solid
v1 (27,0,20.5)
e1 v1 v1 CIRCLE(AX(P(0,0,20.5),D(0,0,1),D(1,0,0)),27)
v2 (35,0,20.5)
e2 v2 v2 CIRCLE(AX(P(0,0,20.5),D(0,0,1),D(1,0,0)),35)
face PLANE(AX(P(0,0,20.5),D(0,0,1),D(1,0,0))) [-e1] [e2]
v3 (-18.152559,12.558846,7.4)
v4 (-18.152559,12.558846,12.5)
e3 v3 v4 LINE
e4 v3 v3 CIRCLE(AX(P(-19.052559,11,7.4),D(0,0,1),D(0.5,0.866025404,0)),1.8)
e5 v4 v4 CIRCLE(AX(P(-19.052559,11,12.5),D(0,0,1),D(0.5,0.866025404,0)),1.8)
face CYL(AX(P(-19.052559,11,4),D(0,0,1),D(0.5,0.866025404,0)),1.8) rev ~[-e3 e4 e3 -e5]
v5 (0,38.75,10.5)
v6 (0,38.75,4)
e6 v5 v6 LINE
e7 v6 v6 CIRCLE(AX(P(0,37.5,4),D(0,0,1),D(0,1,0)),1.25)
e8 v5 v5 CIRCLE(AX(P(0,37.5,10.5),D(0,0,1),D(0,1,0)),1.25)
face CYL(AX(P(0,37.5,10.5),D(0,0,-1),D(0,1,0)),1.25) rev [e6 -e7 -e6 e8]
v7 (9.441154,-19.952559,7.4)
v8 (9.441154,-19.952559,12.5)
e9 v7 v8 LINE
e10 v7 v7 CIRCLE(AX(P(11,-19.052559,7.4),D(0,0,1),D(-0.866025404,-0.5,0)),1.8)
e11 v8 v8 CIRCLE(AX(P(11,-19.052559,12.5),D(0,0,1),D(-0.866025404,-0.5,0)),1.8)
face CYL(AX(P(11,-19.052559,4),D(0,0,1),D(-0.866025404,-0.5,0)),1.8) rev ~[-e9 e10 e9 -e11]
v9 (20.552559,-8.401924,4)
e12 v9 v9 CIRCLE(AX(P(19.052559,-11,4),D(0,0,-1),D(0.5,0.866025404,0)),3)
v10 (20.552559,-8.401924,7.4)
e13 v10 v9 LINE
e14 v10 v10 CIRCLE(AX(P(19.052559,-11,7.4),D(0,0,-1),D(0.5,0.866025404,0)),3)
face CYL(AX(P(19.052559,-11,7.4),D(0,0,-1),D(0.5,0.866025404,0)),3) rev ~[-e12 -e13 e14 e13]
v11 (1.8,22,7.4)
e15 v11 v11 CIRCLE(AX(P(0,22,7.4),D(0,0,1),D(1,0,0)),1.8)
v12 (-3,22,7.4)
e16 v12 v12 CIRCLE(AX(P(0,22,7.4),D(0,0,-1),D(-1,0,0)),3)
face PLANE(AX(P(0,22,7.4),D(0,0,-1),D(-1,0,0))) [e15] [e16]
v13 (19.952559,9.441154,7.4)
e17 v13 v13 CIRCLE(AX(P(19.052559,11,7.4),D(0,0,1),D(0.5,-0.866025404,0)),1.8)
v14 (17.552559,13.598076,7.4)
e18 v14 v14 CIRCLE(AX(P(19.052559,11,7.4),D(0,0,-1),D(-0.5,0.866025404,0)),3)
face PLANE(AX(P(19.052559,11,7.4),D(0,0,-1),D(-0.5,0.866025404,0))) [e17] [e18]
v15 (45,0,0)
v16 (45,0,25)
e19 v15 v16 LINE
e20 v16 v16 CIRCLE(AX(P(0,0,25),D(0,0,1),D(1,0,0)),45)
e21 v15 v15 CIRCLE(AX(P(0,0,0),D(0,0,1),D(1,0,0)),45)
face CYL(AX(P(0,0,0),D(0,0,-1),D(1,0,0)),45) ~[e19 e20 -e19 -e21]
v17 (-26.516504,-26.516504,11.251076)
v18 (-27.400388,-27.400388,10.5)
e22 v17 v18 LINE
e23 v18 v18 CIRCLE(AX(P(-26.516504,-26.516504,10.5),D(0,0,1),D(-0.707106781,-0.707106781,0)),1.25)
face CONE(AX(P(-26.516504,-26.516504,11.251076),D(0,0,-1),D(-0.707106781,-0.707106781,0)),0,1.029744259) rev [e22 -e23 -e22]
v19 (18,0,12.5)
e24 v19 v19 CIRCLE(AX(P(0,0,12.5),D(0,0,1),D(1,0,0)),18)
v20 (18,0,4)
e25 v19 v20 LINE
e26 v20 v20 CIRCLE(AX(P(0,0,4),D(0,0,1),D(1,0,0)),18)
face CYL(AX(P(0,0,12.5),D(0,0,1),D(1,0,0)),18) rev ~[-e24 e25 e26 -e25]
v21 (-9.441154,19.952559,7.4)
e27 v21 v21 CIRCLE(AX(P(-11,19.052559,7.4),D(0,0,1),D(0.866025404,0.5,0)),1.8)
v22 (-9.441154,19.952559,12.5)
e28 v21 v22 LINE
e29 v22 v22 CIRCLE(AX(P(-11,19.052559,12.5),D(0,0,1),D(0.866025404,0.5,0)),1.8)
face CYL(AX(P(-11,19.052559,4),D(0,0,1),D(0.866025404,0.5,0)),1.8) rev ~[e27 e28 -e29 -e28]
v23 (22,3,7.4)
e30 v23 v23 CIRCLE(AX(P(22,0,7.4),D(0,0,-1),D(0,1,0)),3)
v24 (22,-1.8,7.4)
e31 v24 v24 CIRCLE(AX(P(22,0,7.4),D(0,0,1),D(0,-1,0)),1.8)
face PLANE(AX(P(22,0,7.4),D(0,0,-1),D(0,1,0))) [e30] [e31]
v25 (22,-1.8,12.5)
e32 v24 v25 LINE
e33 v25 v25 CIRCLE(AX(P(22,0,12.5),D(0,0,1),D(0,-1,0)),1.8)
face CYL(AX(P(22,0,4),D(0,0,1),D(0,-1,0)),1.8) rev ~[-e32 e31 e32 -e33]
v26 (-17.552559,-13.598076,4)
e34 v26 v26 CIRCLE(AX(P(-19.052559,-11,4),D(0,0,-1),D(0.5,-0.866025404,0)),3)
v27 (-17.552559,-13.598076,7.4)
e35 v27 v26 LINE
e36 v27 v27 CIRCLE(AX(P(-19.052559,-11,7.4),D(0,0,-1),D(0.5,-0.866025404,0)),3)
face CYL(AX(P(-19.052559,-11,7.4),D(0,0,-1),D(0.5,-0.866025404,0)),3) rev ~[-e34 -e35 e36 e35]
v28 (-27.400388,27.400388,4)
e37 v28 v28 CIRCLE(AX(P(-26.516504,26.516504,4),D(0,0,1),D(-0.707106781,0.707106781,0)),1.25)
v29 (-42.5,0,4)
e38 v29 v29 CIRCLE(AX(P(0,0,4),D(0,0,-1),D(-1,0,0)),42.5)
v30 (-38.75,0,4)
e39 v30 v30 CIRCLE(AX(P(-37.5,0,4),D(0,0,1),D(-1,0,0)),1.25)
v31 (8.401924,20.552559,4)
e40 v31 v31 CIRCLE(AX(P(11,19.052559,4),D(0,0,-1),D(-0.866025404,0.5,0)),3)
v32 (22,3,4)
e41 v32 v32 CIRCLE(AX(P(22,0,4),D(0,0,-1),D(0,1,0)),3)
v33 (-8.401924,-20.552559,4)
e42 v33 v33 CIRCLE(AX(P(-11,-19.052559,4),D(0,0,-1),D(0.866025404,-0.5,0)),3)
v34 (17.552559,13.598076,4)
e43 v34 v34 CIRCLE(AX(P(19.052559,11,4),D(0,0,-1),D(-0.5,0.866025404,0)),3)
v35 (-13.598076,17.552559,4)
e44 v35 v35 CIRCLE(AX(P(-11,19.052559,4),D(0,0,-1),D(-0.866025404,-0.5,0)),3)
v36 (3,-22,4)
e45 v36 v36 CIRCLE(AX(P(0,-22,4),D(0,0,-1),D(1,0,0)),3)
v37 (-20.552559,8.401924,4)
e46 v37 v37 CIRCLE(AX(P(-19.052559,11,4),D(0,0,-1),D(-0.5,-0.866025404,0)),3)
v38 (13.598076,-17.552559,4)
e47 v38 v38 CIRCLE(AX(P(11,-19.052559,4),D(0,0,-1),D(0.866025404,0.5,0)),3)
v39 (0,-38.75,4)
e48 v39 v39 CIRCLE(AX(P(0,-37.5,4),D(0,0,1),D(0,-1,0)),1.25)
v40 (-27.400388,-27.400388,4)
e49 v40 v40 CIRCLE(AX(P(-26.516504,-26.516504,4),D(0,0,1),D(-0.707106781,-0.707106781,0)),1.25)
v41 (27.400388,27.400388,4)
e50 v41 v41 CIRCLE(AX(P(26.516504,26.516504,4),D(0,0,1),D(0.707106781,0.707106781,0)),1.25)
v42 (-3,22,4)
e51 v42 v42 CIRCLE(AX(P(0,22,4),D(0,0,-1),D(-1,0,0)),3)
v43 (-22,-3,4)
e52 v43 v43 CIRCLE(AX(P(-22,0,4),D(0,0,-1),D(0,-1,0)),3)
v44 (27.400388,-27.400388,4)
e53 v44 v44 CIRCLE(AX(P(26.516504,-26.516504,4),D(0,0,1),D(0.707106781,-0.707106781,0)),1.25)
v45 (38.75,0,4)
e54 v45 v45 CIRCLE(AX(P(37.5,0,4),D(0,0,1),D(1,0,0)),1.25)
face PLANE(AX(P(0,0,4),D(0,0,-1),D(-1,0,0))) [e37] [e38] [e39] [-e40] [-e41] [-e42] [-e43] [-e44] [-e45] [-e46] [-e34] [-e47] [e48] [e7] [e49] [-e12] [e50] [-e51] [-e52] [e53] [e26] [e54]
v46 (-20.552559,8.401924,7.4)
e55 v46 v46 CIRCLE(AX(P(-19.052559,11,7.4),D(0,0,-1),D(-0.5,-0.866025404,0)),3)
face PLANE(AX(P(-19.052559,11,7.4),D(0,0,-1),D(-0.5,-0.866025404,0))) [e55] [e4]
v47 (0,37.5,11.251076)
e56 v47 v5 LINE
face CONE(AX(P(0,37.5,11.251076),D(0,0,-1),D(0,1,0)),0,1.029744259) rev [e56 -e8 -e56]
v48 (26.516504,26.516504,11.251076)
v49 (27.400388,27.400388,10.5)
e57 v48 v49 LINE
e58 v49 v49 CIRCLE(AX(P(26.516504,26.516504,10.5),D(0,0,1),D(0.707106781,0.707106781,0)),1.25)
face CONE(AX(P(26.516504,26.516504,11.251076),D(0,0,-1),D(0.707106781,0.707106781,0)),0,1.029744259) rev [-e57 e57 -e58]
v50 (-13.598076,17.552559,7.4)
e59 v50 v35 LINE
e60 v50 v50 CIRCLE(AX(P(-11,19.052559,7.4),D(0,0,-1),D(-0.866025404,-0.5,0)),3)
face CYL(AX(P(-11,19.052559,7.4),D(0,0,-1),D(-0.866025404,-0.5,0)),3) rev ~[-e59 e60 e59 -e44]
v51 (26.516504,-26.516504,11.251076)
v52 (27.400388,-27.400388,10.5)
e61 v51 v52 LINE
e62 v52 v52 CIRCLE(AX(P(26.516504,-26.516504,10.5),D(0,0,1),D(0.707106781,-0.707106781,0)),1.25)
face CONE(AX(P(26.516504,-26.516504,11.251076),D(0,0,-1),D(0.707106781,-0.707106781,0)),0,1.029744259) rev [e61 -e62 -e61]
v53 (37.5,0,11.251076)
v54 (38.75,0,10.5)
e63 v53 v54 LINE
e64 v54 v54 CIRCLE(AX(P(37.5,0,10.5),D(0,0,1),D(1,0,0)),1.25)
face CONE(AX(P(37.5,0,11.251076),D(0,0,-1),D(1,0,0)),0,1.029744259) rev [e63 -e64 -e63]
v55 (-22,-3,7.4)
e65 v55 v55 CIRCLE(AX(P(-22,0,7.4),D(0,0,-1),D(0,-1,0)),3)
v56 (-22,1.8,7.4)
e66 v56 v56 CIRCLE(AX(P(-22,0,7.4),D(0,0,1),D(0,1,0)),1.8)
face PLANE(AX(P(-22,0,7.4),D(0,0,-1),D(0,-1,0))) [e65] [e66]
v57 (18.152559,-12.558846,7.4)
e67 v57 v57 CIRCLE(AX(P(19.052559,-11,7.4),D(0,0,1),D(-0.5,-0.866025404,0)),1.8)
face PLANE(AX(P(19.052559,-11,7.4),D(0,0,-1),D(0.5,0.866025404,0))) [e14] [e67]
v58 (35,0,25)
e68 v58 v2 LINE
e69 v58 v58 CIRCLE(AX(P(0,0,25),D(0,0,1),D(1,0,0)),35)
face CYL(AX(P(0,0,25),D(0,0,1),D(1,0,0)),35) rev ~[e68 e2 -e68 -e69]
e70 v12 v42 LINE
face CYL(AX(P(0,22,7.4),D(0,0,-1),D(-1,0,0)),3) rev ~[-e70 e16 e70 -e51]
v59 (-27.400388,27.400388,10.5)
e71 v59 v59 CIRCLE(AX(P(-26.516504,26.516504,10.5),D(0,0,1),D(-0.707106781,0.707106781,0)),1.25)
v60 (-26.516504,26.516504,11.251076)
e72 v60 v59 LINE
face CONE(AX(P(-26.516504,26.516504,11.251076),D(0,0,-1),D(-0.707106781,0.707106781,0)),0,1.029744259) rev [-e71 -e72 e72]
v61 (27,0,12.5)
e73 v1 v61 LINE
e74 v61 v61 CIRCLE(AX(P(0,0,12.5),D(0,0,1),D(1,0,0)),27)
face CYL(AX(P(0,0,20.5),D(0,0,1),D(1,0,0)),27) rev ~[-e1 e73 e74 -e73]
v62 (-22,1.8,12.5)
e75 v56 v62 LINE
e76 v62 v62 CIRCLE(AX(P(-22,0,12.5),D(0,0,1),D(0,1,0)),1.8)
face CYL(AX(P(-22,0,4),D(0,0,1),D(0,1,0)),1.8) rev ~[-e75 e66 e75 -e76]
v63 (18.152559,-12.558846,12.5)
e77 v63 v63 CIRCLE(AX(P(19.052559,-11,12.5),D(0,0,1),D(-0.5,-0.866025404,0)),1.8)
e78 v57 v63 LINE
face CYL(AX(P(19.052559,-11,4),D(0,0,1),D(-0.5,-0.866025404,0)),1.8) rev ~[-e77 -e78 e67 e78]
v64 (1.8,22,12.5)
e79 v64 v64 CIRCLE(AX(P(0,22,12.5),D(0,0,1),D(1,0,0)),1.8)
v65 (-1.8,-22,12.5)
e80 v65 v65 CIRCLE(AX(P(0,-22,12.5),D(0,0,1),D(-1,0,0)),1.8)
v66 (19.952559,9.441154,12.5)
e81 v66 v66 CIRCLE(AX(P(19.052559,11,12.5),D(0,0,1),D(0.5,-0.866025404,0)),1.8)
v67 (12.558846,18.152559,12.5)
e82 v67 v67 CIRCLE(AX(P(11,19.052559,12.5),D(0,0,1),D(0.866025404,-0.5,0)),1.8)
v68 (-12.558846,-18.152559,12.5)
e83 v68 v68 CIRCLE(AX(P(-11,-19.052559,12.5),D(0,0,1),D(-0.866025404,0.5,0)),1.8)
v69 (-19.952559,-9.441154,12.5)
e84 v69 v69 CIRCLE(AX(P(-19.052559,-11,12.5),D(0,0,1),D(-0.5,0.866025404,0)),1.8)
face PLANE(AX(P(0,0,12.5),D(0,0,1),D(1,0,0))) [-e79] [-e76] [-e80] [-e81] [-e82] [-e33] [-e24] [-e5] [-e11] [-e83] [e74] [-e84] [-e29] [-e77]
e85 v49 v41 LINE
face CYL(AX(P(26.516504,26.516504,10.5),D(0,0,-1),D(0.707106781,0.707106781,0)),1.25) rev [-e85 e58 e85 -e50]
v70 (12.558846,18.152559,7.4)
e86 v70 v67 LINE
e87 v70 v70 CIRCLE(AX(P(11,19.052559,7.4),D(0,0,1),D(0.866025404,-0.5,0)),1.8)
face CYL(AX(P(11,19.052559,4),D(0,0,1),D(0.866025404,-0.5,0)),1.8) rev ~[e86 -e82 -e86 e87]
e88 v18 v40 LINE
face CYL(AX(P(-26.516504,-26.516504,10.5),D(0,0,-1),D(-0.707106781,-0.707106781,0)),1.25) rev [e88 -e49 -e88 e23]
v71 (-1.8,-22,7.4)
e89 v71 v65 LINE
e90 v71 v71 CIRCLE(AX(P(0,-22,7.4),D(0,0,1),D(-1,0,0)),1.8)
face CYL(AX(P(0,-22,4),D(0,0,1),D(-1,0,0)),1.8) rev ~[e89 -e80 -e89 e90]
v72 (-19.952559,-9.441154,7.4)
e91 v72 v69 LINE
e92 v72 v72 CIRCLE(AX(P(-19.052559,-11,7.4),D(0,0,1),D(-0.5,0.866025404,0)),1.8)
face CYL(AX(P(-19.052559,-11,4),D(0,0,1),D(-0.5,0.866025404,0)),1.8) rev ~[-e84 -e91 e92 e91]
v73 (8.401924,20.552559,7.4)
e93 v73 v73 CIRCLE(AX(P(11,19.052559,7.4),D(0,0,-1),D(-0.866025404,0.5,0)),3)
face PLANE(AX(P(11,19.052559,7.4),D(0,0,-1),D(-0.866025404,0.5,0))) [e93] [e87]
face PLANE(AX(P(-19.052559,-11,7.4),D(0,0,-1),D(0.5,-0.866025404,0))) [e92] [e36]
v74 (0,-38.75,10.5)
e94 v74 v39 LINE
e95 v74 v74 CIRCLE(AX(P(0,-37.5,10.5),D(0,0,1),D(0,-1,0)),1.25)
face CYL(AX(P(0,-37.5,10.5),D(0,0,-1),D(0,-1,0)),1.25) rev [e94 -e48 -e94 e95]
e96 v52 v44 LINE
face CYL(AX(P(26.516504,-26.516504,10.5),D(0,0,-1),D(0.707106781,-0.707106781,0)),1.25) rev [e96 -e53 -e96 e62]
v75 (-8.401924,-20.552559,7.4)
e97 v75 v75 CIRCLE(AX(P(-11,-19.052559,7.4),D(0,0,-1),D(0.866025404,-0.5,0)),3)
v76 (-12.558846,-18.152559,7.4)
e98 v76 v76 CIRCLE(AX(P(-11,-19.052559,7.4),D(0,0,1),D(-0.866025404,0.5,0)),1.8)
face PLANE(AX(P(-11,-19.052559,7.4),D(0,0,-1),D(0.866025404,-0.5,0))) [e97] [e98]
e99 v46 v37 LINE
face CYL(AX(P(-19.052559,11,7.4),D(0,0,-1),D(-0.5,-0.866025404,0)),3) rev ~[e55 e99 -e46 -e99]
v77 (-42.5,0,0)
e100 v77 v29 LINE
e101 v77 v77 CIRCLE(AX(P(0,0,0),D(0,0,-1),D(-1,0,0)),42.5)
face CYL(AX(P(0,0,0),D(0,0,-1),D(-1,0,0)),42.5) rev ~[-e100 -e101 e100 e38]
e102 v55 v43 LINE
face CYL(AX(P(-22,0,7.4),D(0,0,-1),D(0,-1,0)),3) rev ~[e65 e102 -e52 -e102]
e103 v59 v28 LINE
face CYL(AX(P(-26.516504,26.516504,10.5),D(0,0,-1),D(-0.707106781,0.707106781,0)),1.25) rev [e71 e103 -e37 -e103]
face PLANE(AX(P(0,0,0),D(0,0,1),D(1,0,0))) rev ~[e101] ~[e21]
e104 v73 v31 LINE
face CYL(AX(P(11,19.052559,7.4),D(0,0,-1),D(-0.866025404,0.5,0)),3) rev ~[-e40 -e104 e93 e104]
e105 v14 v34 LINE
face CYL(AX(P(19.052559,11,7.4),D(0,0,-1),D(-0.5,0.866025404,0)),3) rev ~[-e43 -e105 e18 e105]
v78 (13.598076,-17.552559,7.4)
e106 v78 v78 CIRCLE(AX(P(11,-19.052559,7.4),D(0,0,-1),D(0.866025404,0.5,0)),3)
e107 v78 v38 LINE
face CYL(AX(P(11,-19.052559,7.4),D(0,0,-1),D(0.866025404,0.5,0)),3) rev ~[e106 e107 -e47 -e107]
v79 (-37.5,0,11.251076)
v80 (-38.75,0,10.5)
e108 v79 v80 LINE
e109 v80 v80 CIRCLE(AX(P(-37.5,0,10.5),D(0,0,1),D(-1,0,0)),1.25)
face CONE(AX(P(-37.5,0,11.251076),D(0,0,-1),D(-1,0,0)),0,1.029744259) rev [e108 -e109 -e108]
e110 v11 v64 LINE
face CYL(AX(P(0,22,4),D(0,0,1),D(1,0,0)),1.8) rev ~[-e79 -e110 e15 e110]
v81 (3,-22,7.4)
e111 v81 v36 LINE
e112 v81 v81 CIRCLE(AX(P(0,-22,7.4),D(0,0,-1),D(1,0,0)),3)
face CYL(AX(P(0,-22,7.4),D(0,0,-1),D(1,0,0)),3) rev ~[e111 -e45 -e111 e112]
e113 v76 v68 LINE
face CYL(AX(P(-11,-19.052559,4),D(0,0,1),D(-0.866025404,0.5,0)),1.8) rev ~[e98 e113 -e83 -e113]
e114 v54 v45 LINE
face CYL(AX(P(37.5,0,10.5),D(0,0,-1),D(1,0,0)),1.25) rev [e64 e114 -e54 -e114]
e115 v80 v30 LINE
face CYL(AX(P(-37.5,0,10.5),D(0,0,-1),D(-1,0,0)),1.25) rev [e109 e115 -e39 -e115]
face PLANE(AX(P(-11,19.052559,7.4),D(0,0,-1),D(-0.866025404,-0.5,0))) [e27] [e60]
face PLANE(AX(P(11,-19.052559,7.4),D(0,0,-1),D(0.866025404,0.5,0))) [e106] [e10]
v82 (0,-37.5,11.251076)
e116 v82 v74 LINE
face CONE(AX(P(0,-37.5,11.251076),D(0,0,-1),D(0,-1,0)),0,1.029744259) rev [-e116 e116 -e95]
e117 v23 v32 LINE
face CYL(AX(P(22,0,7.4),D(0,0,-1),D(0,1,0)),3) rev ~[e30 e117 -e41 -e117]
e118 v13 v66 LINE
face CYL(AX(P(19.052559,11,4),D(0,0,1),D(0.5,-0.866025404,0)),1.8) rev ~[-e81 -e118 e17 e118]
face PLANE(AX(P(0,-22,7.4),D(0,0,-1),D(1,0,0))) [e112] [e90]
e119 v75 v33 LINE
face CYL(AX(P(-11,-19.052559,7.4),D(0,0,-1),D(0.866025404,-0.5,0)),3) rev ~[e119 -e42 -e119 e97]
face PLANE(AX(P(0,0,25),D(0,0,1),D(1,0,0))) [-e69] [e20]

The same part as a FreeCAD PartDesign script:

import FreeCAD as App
import Part
import Sketcher

V = App.Vector
Q = App.Units.Quantity


def add_polygon(sketch, points):
    """Adds a closed chain of lines whose ends are joined by coincident constraints."""
    first, n = sketch.GeometryCount, len(points)
    for a, b in zip(points, points[1:] + points[:1]):
        sketch.addGeometry(Part.LineSegment(App.Vector(*a, 0), App.Vector(*b, 0)), False)
    for i in range(n):
        sketch.addConstraint(Sketcher.Constraint("Coincident", first + i, 2, first + (i + 1) % n, 1))

doc = App.newDocument("Part")
body = doc.addObject("PartDesign::Body", "Body")

# Sketch on XY plane
sketch1 = body.newObject("Sketcher::SketchObject", "Sketch")
sketch1.AttachmentSupport = (doc.getObject("XY_Plane"), [""])
sketch1.MapMode = "FlatFace"
sketch1.addGeometry(Part.Circle(V(0, 0, 0), V(0, 0, 1), 45), False)
sketch1.addConstraint(Sketcher.Constraint("Coincident", 0, 3, -1, 1))
sketch1.addConstraint(Sketcher.Constraint("Diameter", 0, 90.0))
pad1 = body.newObject("PartDesign::Pad", "Pad")
pad1.Profile = sketch1
pad1.Length = 25

# Sketch on XY plane
sketch2 = body.newObject("Sketcher::SketchObject", "Sketch001")
sketch2.AttachmentSupport = (doc.getObject("XY_Plane"), [""])
sketch2.MapMode = "FlatFace"
sketch2.AttachmentOffset = App.Placement(V(0, 0, 25), App.Rotation())
sketch2.addGeometry(Part.Circle(V(0, 0, 0), V(0, 0, 1), 35), False)
sketch2.addConstraint(Sketcher.Constraint("Coincident", 0, 3, -1, 1))
sketch2.addConstraint(Sketcher.Constraint("Diameter", 0, 70.0))
pocket1 = body.newObject("PartDesign::Pocket", "Pocket")
pocket1.Profile = sketch2
pocket1.Length = 4.5

# Sketch on XY plane
sketch3 = body.newObject("Sketcher::SketchObject", "Sketch002")
sketch3.AttachmentSupport = (doc.getObject("XY_Plane"), [""])
sketch3.MapMode = "FlatFace"
sketch3.AttachmentOffset = App.Placement(V(0, 0, 20.5), App.Rotation())
sketch3.addGeometry(Part.Circle(V(0, 0, 0), V(0, 0, 1), 27), False)
sketch3.addConstraint(Sketcher.Constraint("Coincident", 0, 3, -1, 1))
sketch3.addConstraint(Sketcher.Constraint("Diameter", 0, 54.0))
pocket2 = body.newObject("PartDesign::Pocket", "Pocket001")
pocket2.Profile = sketch3
pocket2.Length = 8

# Sketch on XY plane
sketch4 = body.newObject("Sketcher::SketchObject", "Sketch003")
sketch4.AttachmentSupport = (doc.getObject("XY_Plane"), [""])
sketch4.MapMode = "FlatFace"
sketch4.AttachmentOffset = App.Placement(V(0, 0, 12.5), App.Rotation())
sketch4.addGeometry(Part.Circle(V(0, 0, 0), V(0, 0, 1), 18), False)
sketch4.addConstraint(Sketcher.Constraint("Coincident", 0, 3, -1, 1))
sketch4.addConstraint(Sketcher.Constraint("Diameter", 0, 36.0))
pocket3 = body.newObject("PartDesign::Pocket", "Pocket002")
pocket3.Profile = sketch4
pocket3.Length = 8.5

# Sketch on XY plane
sketch5 = body.newObject("Sketcher::SketchObject", "Sketch004")
sketch5.AttachmentSupport = (doc.getObject("XY_Plane"), [""])
sketch5.MapMode = "FlatFace"
sketch5.addGeometry(Part.Circle(V(0, 0, 0), V(0, 0, 1), 42.5), False)
sketch5.addConstraint(Sketcher.Constraint("Coincident", 0, 3, -1, 1))
sketch5.addConstraint(Sketcher.Constraint("Diameter", 0, 85.0))
pocket4 = body.newObject("PartDesign::Pocket", "Pocket003")
pocket4.Profile = sketch5
pocket4.Length = 4
pocket4.Reversed = True

# Sketch on XY plane
sketch6 = body.newObject("Sketcher::SketchObject", "Sketch005")
sketch6.AttachmentSupport = (doc.getObject("XY_Plane"), [""])
sketch6.MapMode = "FlatFace"
sketch6.AttachmentOffset = App.Placement(V(0, 0, 4), App.Rotation())
sketch6.addGeometry(Part.Circle(V(0, 22, 0), V(0, 0, 1), 1.8), False)
sketch6.addConstraint(Sketcher.Constraint("PointOnObject", 0, 3, -2))
sketch6.addConstraint(Sketcher.Constraint("Diameter", 0, 3.6))
sketch6.addConstraint(Sketcher.Constraint("DistanceY", -1, 1, 0, 3, 22.0))
doc.recompute()
hole = body.newObject("PartDesign::Hole", "Hole")
hole.Profile = sketch6
hole.ThreadType = "None"
hole.Diameter = 3.6
hole.DepthType = "ThroughAll"
hole.HoleCutType = "Counterbore"
hole.HoleCutDiameter = 6
hole.HoleCutDepth = 3.4
hole.Reversed = True
doc.recompute()

polarpattern = body.newObject("PartDesign::PolarPattern", "PolarPattern")
polarpattern.Originals = [hole]
polarpattern.Axis = (doc.getObject("Z_Axis"), [""])
polarpattern.Angle = 360
polarpattern.Occurrences = 12
body.Tip = polarpattern

# Sketch on YZ plane
sketch7 = body.newObject("Sketcher::SketchObject", "Sketch006")
sketch7.AttachmentSupport = (doc.getObject("YZ_Plane"), [""])
sketch7.MapMode = "FlatFace"
add_polygon(sketch7, [(37.5, 11.251076), (37.5, 4), (38.75, 4), (38.75, 10.5)])  # lines 0-3
sketch7.addGeometry(Part.LineSegment(V(37.5, 4, 0), V(37.5, 11.251076, 0)), True)  # axis
sketch7.addConstraint(Sketcher.Constraint("Vertical", 0))
sketch7.addConstraint(Sketcher.Constraint("Horizontal", 1))
sketch7.addConstraint(Sketcher.Constraint("Vertical", 2))
sketch7.addConstraint(Sketcher.Constraint("Vertical", 4))
sketch7.addConstraint(Sketcher.Constraint("Coincident", 4, 1, 0, 2))
sketch7.addConstraint(Sketcher.Constraint("Equal", 0, 4))
sketch7.addConstraint(Sketcher.Constraint("Angle", 3, Q("149 deg")))
sketch7.addConstraint(Sketcher.Constraint("DistanceY", 2, 1, 2, 2, 6.5))
sketch7.addConstraint(Sketcher.Constraint("DistanceY", -1, 1, 0, 2, 4.0))
sketch7.addConstraint(Sketcher.Constraint("DistanceX", 1, 1, 1, 2, 1.25))
sketch7.addConstraint(Sketcher.Constraint("DistanceX", -1, 1, 0, 2, 37.5))
groove = body.newObject("PartDesign::Groove", "Groove")
groove.Profile = sketch7
groove.ReferenceAxis = (sketch7, ["Axis0"])
groove.Angle = 360
doc.recompute()

polarpattern2 = body.newObject("PartDesign::PolarPattern", "PolarPattern001")
polarpattern2.Originals = [groove]
polarpattern2.Axis = (doc.getObject("Z_Axis"), [""])
polarpattern2.Angle = 360
polarpattern2.Occurrences = 8
body.Tip = polarpattern2

doc.recompute()
